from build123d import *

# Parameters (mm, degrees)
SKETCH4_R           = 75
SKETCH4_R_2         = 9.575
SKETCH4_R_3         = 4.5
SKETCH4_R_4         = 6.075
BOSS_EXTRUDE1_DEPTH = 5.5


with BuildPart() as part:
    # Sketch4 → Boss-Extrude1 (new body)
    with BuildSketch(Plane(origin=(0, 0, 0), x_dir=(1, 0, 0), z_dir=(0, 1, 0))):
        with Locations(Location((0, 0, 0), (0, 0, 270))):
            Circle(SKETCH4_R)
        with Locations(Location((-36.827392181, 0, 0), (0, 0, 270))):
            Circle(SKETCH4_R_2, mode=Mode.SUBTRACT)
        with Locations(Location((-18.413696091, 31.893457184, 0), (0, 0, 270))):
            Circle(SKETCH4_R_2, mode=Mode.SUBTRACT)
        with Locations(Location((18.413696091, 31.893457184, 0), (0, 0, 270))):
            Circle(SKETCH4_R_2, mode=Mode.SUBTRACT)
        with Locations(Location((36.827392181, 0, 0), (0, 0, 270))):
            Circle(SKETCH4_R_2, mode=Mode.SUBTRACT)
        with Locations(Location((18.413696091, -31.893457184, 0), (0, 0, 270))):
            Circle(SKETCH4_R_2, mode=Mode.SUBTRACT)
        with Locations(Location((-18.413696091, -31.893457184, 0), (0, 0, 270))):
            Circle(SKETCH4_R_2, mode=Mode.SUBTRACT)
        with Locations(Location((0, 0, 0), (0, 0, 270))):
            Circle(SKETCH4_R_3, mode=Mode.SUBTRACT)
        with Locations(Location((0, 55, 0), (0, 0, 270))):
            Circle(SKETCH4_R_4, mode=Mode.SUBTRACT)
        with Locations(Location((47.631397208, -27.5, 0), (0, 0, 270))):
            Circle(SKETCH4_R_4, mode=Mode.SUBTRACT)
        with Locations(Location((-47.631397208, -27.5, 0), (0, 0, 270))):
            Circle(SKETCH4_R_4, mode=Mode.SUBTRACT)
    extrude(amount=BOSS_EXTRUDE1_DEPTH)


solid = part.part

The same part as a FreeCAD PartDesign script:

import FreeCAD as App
import Part
import Sketcher

V = App.Vector
Q = App.Units.Quantity

doc = App.newDocument("Part")
params = doc.addObject("Spreadsheet::Sheet", "Params")
for row, (alias, value) in enumerate([
    ("sketch1_diameter", "150 mm"),
    ("sketch1_diameter2", "9 mm"),
    ("sketch1_diameter3", "12.15 mm"),
    ("sketch1_diameter4", "19.15 mm"),
    ("pad1_length", "5.5 mm"),
], start=1):
    params.set(f"A{row}", alias)
    params.set(f"B{row}", "=" + value)
    params.setAlias(f"B{row}", alias)

body = doc.addObject("PartDesign::Body", "Body")

sketch1 = doc.addObject("Sketcher::SketchObject", "Sketch")
body.addObject(sketch1)
sketch1.AttachmentSupport = (doc.XZ_Plane, [""])
sketch1.MapMode = "FlatFace"
sketch1.addGeometry([
    Part.Circle(V(0, 0, 0), V(0, 0, 1), 75),
    Part.Circle(V(0, -55, 0), V(0, 0, 1), 6.1),
    Part.Circle(V(-18.4, -31.9, 0), V(0, 0, 1), 9.6),
    Part.Circle(V(-36.8, 0, 0), V(0, 0, 1), 9.6),
    Part.Circle(V(-47.6, 27.5, 0), V(0, 0, 1), 6.1),
    Part.Circle(V(0, 0, 0), V(0, 0, 1), 4.5),
    Part.Circle(V(-18.4, 31.9, 0), V(0, 0, 1), 9.6),
    Part.Circle(V(18.4, -31.9, 0), V(0, 0, 1), 9.6),
    Part.Circle(V(18.4, 31.9, 0), V(0, 0, 1), 9.6),
    Part.Circle(V(36.8, 0, 0), V(0, 0, 1), 9.6),
    Part.Circle(V(47.6, 27.5, 0), V(0, 0, 1), 6.1),
], False)
sketch1.addConstraint([
    Sketcher.Constraint("Coincident", 0, 3, -1, 1),
    Sketcher.Constraint("Coincident", 5, 3, -1, 1),
    Sketcher.Constraint("Equal", 2, 3),
    Sketcher.Constraint("Equal", 1, 4),
    Sketcher.Constraint("Equal", 3, 6),
    Sketcher.Constraint("Equal", 6, 7),
    Sketcher.Constraint("Equal", 7, 8),
    Sketcher.Constraint("Equal", 8, 9),
    Sketcher.Constraint("Equal", 4, 10),
    Sketcher.Constraint("Symmetric", 6, 3, 7, 3, -1, 1),
    Sketcher.Constraint("Symmetric", 2, 3, 8, 3, -1, 1),
    Sketcher.Constraint("Symmetric", 3, 3, 9, 3, -1, 1),
    Sketcher.Constraint("Symmetric", 2, 3, 7, 3, -2),
    Sketcher.Constraint("Symmetric", 4, 3, 10, 3, -2),
    Sketcher.Constraint("PointOnObject", 1, 3, -2),
    Sketcher.Constraint("PointOnObject", 3, 3, -1),
    Sketcher.Constraint("Diameter", 0, Q("150 mm")),
    Sketcher.Constraint("Diameter", 5, Q("9 mm")),
    Sketcher.Constraint("Diameter", 1, Q("12.15 mm")),
    Sketcher.Constraint("Diameter", 2, Q("19.15 mm")),
    Sketcher.Constraint("DistanceY", 1, 3, -1, 1, Q("55 mm")),
    Sketcher.Constraint("DistanceY", -1, 1, 4, 3, Q("27.5 mm")),
    Sketcher.Constraint("DistanceX", 4, 3, 2, 3, Q("29.217701 mm")),
    Sketcher.Constraint("DistanceX", 3, 3, 7, 3, Q("55.241088 mm")),
    Sketcher.Constraint("DistanceX", 2, 3, -1, 1, Q("18.413696 mm")),
    Sketcher.Constraint("DistanceY", 2, 3, -1, 1, Q("31.893457 mm")),
])
sketch1.setExpression("Constraints[16]", "Params.sketch1_diameter")
sketch1.setExpression("Constraints[17]", "Params.sketch1_diameter2")
sketch1.setExpression("Constraints[18]", "Params.sketch1_diameter3")
sketch1.setExpression("Constraints[19]", "Params.sketch1_diameter4")
pad1 = doc.addObject("PartDesign::Pad", "Pad")
body.addObject(pad1)
pad1.Profile = sketch1
pad1.setExpression("Length", "Params.pad1_length")
pad1.Reversed = True

doc.recompute()
